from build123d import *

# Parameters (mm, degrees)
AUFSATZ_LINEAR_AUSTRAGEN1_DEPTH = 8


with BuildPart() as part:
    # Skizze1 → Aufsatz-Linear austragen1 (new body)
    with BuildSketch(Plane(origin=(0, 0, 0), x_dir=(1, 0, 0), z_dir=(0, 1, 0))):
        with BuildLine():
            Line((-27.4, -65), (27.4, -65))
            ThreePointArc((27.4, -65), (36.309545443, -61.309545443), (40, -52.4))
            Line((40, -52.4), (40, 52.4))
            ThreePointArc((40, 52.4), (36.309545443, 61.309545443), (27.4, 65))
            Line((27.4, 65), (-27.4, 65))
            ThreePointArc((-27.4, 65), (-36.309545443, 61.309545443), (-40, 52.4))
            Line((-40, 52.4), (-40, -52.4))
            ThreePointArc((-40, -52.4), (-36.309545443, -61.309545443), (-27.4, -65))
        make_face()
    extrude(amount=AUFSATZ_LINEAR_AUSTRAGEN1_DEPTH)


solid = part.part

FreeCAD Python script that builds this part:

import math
import FreeCAD as App
import Part
import Sketcher

V = App.Vector
Q = App.Units.Quantity

doc = App.newDocument("Part")
body = doc.addObject("PartDesign::Body", "Body")

sketch1 = body.newObject("Sketcher::SketchObject", "Sketch")
sketch1.AttachmentSupport = (doc.getObject("XZ_Plane"), [""])
sketch1.MapMode = "FlatFace"
sketch1.addGeometry(Part.LineSegment(V(-27, 65, 0), V(27, 65, 0)), False)
sketch1.addGeometry(Part.ArcOfCircle(Part.Circle(V(27, 52, 0), V(0, 0, 1), 13), math.radians(0), math.radians(90)), False)
sketch1.addGeometry(Part.LineSegment(V(40, 52, 0), V(40, -52, 0)), False)
sketch1.addGeometry(Part.ArcOfCircle(Part.Circle(V(27, -52, 0), V(0, 0, 1), 13), math.radians(-90), math.radians(0)), False)
sketch1.addGeometry(Part.LineSegment(V(27, -65, 0), V(-27, -65, 0)), False)
sketch1.addGeometry(Part.ArcOfCircle(Part.Circle(V(-27, -52, 0), V(0, 0, 1), 13), math.radians(180), math.radians(270)), False)
sketch1.addGeometry(Part.LineSegment(V(-40, -52, 0), V(-40, 52, 0)), False)
sketch1.addGeometry(Part.ArcOfCircle(Part.Circle(V(-27, 52, 0), V(0, 0, 1), 13), math.radians(90), math.radians(180)), False)
sketch1.addConstraint(Sketcher.Constraint("Tangent", 0, 2, 1, 2))
sketch1.addConstraint(Sketcher.Constraint("Tangent", 1, 1, 2, 1))
sketch1.addConstraint(Sketcher.Constraint("Tangent", 2, 2, 3, 2))
sketch1.addConstraint(Sketcher.Constraint("Tangent", 3, 1, 4, 1))
sketch1.addConstraint(Sketcher.Constraint("Tangent", 4, 2, 5, 2))
sketch1.addConstraint(Sketcher.Constraint("Tangent", 5, 1, 6, 1))
sketch1.addConstraint(Sketcher.Constraint("Tangent", 6, 2, 7, 2))
sketch1.addConstraint(Sketcher.Constraint("Tangent", 7, 1, 0, 1))
sketch1.addConstraint(Sketcher.Constraint("Horizontal", 0))
sketch1.addConstraint(Sketcher.Constraint("Vertical", 2))
sketch1.addConstraint(Sketcher.Constraint("Horizontal", 4))
sketch1.addConstraint(Sketcher.Constraint("Vertical", 6))
sketch1.addConstraint(Sketcher.Constraint("Equal", 1, 3))
sketch1.addConstraint(Sketcher.Constraint("Equal", 3, 5))
sketch1.addConstraint(Sketcher.Constraint("Equal", 5, 7))
sketch1.addConstraint(Sketcher.Constraint("Symmetric", 1, 3, 5, 3, -1, 1))
sketch1.addConstraint(Sketcher.Constraint("Radius", 1, Q("12.6 mm")))
sketch1.addConstraint(Sketcher.Constraint("DistanceX", 0, 1, 0, 2, Q("54.8 mm")))
sketch1.addConstraint(Sketcher.Constraint("DistanceY", 2, 2, 2, 1, Q("104.8 mm")))
pad1 = body.newObject("PartDesign::Pad", "Pad")
pad1.Profile = sketch1
pad1.Length = 8
pad1.Reversed = True

doc.recompute()
